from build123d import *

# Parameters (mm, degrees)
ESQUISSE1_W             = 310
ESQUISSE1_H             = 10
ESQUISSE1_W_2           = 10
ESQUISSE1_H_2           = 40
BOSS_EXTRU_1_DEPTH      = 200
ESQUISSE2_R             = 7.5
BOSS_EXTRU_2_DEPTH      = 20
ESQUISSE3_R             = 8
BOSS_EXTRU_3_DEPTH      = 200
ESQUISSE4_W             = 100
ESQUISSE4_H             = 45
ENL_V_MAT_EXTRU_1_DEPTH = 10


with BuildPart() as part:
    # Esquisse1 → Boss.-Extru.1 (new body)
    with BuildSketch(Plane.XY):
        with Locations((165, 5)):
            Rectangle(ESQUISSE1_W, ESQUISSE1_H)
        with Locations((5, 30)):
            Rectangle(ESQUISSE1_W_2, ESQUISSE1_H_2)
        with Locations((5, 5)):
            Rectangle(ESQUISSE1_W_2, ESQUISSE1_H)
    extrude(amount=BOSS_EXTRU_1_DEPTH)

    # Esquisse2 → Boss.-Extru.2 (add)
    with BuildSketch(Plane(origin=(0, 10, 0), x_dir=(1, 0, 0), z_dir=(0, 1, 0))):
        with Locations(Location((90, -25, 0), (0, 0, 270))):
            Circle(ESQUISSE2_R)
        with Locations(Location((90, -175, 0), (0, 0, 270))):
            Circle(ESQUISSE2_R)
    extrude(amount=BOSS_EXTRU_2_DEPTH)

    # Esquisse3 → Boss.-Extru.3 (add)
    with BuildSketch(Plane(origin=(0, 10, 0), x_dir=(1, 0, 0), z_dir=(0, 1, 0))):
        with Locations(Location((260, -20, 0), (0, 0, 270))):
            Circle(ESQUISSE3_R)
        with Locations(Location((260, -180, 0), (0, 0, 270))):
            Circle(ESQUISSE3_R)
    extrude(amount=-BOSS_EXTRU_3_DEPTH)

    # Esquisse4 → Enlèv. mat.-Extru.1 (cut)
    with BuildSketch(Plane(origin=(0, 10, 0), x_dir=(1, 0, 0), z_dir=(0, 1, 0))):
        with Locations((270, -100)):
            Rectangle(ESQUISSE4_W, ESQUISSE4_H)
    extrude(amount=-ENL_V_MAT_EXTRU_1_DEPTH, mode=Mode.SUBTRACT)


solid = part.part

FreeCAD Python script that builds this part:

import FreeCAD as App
import Part
import Sketcher
Q = App.Units.Quantity


def add_polygon(sketch, points):
    """Adds a closed chain of lines whose ends are joined by coincident constraints."""
    first, n = sketch.GeometryCount, len(points)
    for a, b in zip(points, points[1:] + points[:1]):
        sketch.addGeometry(Part.LineSegment(App.Vector(*a, 0), App.Vector(*b, 0)), False)
    for i in range(n):
        sketch.addConstraint(Sketcher.Constraint("Coincident", first + i, 2, first + (i + 1) % n, 1))

doc = App.newDocument("Part")
body = doc.addObject("PartDesign::Body", "Body")

# Sketch on XY plane
sketch1 = body.newObject("Sketcher::SketchObject", "Sketch")
sketch1.AttachmentSupport = (doc.getObject("XY_Plane"), [""])
sketch1.MapMode = "FlatFace"
add_polygon(sketch1, [(320, 0), (320, 10), (10, 10), (10, 50), (0, 50), (0, 0)])  # lines 0-5
sketch1.addConstraint(Sketcher.Constraint("Vertical", 0))
sketch1.addConstraint(Sketcher.Constraint("Horizontal", 1))
sketch1.addConstraint(Sketcher.Constraint("Vertical", 2))
sketch1.addConstraint(Sketcher.Constraint("Horizontal", 3))
sketch1.addConstraint(Sketcher.Constraint("Vertical", 4))
sketch1.addConstraint(Sketcher.Constraint("Horizontal", 5))
sketch1.addConstraint(Sketcher.Constraint("Coincident", 4, 2, -1, 1))
sketch1.addConstraint(Sketcher.Constraint("Equal", 3, 0))
sketch1.addConstraint(Sketcher.Constraint("DistanceX", 1, 2, 1, 1, Q("310 mm")))
sketch1.addConstraint(Sketcher.Constraint("DistanceX", 3, 2, 3, 1, Q("10 mm")))
sketch1.addConstraint(Sketcher.Constraint("DistanceY", 2, 1, 2, 2, Q("40 mm")))
pad1 = body.newObject("PartDesign::Pad", "Pad")
pad1.Profile = sketch1
pad1.Length = 200

# Sketch on XZ plane
sketch2 = body.newObject("Sketcher::SketchObject", "Sketch001")
sketch2.AttachmentSupport = (doc.getObject("XZ_Plane"), [""])
sketch2.MapMode = "FlatFace"
sketch2.AttachmentOffset = App.Placement(App.Vector(0, 0, -10), App.Rotation())
sketch2.addGeometry(Part.Circle(App.Vector(90, 25, 0), App.Vector(0, 0, 1), 8), False)
sketch2.addGeometry(Part.Circle(App.Vector(90, 175, 0), App.Vector(0, 0, 1), 8), False)
sketch2.addConstraint(Sketcher.Constraint("Equal", 0, 1))
sketch2.addConstraint(Sketcher.Constraint("Vertical", 0, 3, 1, 3))
sketch2.addConstraint(Sketcher.Constraint("Diameter", 0, Q("15 mm")))
sketch2.addConstraint(Sketcher.Constraint("DistanceX", -1, 1, 0, 3, Q("90 mm")))
sketch2.addConstraint(Sketcher.Constraint("DistanceY", -1, 1, 0, 3, Q("25 mm")))
sketch2.addConstraint(Sketcher.Constraint("DistanceY", -1, 1, 1, 3, Q("175 mm")))
pad2 = body.newObject("PartDesign::Pad", "Pad001")
pad2.Profile = sketch2
pad2.Length = 20
pad2.Reversed = True

# Sketch on XZ plane
sketch3 = body.newObject("Sketcher::SketchObject", "Sketch002")
sketch3.AttachmentSupport = (doc.getObject("XZ_Plane"), [""])
sketch3.MapMode = "FlatFace"
sketch3.AttachmentOffset = App.Placement(App.Vector(0, 0, -10), App.Rotation())
sketch3.addGeometry(Part.Circle(App.Vector(260, 20, 0), App.Vector(0, 0, 1), 8), False)
sketch3.addGeometry(Part.Circle(App.Vector(260, 180, 0), App.Vector(0, 0, 1), 8), False)
sketch3.addConstraint(Sketcher.Constraint("Equal", 0, 1))
sketch3.addConstraint(Sketcher.Constraint("Vertical", 0, 3, 1, 3))
sketch3.addConstraint(Sketcher.Constraint("Diameter", 0, Q("16 mm")))
sketch3.addConstraint(Sketcher.Constraint("DistanceX", -1, 1, 0, 3, Q("260 mm")))
sketch3.addConstraint(Sketcher.Constraint("DistanceY", -1, 1, 0, 3, Q("20 mm")))
sketch3.addConstraint(Sketcher.Constraint("DistanceY", -1, 1, 1, 3, Q("180 mm")))
pad3 = body.newObject("PartDesign::Pad", "Pad002")
pad3.Profile = sketch3
pad3.Length = 200

# Sketch on XZ plane
sketch4 = body.newObject("Sketcher::SketchObject", "Sketch003")
sketch4.AttachmentSupport = (doc.getObject("XZ_Plane"), [""])
sketch4.MapMode = "FlatFace"
sketch4.AttachmentOffset = App.Placement(App.Vector(0, 0, -10), App.Rotation())
add_polygon(sketch4, [(220, 78), (220, 122), (320, 122), (320, 78)])  # lines 0-3
sketch4.addConstraint(Sketcher.Constraint("Vertical", 0))
sketch4.addConstraint(Sketcher.Constraint("Horizontal", 1))
sketch4.addConstraint(Sketcher.Constraint("Vertical", 2))
sketch4.addConstraint(Sketcher.Constraint("Horizontal", 3))
sketch4.addConstraint(Sketcher.Constraint("DistanceX", 1, 1, 1, 2, Q("100 mm")))
sketch4.addConstraint(Sketcher.Constraint("DistanceY", 0, 1, 0, 2, Q("45 mm")))
sketch4.addConstraint(Sketcher.Constraint("DistanceX", -1, 1, 0, 2, Q("220 mm")))
sketch4.addConstraint(Sketcher.Constraint("DistanceY", -1, 1, 0, 2, Q("122.5 mm")))
pocket1 = body.newObject("PartDesign::Pocket", "Pocket")
pocket1.Profile = sketch4
pocket1.Length = 10
pocket1.Reversed = True

doc.recompute()
